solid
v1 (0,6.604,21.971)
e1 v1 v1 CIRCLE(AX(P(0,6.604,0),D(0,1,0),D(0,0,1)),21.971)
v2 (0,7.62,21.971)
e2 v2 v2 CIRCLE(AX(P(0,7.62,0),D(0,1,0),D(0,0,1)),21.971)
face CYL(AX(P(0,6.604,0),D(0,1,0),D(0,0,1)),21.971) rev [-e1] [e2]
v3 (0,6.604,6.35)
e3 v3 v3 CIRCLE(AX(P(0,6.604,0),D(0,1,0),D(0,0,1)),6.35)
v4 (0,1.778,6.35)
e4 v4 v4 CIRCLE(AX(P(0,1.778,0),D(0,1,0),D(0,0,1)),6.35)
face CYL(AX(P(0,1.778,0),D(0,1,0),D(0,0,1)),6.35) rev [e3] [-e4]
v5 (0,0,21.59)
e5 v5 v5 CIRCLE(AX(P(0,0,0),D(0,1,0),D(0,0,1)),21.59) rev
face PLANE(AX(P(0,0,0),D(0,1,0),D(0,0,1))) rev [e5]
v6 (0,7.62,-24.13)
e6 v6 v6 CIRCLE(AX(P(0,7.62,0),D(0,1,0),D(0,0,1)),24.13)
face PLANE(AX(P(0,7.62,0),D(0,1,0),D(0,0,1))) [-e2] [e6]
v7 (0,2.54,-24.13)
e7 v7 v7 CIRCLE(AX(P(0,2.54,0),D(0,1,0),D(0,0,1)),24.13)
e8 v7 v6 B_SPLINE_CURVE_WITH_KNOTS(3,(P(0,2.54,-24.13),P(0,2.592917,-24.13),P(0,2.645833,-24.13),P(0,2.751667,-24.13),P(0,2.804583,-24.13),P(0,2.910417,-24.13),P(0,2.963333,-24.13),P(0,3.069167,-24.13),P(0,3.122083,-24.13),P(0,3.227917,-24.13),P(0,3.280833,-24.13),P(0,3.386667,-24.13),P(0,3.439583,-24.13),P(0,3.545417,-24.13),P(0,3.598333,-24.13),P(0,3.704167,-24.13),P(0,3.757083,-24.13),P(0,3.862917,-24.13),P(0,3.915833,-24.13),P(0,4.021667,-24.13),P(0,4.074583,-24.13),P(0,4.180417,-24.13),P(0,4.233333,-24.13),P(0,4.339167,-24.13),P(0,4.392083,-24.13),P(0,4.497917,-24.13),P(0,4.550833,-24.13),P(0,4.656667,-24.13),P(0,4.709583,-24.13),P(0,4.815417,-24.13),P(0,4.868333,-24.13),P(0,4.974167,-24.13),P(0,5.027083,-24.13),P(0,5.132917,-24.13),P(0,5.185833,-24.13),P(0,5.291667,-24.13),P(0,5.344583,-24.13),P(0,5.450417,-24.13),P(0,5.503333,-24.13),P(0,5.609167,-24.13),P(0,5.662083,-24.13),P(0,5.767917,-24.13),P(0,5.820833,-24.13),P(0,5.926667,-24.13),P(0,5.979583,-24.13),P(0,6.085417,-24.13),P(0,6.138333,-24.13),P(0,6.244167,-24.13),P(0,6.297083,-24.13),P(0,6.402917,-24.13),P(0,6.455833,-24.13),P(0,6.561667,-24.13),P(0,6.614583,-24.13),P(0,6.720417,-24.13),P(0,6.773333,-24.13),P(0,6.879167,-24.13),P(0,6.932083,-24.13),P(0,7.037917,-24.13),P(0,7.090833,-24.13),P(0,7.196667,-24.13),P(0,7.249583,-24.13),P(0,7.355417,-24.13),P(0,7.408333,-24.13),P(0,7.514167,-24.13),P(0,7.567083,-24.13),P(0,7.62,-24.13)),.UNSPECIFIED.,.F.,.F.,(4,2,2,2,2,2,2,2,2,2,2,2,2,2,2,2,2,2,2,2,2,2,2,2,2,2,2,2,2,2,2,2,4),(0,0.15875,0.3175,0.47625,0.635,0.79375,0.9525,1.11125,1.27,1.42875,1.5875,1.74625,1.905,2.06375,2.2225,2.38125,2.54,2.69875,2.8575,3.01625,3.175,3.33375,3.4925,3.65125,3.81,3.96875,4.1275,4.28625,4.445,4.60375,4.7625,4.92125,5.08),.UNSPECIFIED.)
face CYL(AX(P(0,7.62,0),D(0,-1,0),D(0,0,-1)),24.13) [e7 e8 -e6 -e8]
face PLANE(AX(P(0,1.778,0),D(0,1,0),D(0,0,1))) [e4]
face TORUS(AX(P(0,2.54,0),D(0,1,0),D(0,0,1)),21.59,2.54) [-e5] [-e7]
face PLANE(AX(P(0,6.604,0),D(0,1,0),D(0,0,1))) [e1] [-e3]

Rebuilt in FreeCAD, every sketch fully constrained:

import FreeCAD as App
import Part
import Sketcher
Q = App.Units.Quantity


def edges_at(feature, points):
    """Names of the edges that pass closest to the given points."""
    edges = feature.Shape.Edges
    near = lambda p: min(range(len(edges)), key=lambda i: edges[i].distToShape(Part.Vertex(*p))[0])
    return sorted({f"Edge{near(p) + 1}" for p in points})

doc = App.newDocument("Part")
body = doc.addObject("PartDesign::Body", "Body")

sketch1 = body.newObject("Sketcher::SketchObject", "Sketch")
sketch1.AttachmentSupport = (doc.getObject("XZ_Plane"), [""])
sketch1.MapMode = "FlatFace"
sketch1.addGeometry(Part.Circle(App.Vector(0, 0, 0), App.Vector(0, 0, 1), 24), False)
sketch1.addConstraint([
    Sketcher.Constraint("Coincident", 0, 3, -1, 1),
    Sketcher.Constraint("Diameter", 0, Q("1.9 in")),
])
pad1 = body.newObject("PartDesign::Pad", "Pad")
pad1.Profile = sketch1
pad1.Length = Q("0.3 in")
pad1.Reversed = True

sketch2 = body.newObject("Sketcher::SketchObject", "Sketch001")
sketch2.AttachmentSupport = (doc.getObject("XZ_Plane"), [""])
sketch2.MapMode = "FlatFace"
sketch2.AttachmentOffset = App.Placement(App.Vector(0, 0, -0.3 * 25.4), App.Rotation())
sketch2.addGeometry(Part.Circle(App.Vector(0, 0, 0), App.Vector(0, 0, 1), 22), False)
sketch2.addConstraint([
    Sketcher.Constraint("Coincident", 0, 3, -1, 1),
    Sketcher.Constraint("Diameter", 0, Q("1.73 in")),
])
pocket1 = body.newObject("PartDesign::Pocket", "Pocket")
pocket1.Profile = sketch2
pocket1.Length = Q("0.04 in")
pocket1.Reversed = True

sketch3 = body.newObject("Sketcher::SketchObject", "Sketch002")
sketch3.AttachmentSupport = (doc.getObject("XZ_Plane"), [""])
sketch3.MapMode = "FlatFace"
sketch3.AttachmentOffset = App.Placement(App.Vector(0, 0, -0.26 * 25.4), App.Rotation())
sketch3.addGeometry(Part.Circle(App.Vector(0, 0, 0), App.Vector(0, 0, 1), 6), False)
sketch3.addConstraint([
    Sketcher.Constraint("Coincident", 0, 3, -1, 1),
    Sketcher.Constraint("Diameter", 0, Q("0.5 in")),
])
pocket2 = body.newObject("PartDesign::Pocket", "Pocket001")
pocket2.Profile = sketch3
pocket2.Length = Q("0.19 in")
pocket2.Reversed = True
doc.recompute()

fillet = body.newObject("PartDesign::Fillet", "Fillet")
fillet.Base = (pocket2, edges_at(pocket2, [(0, 0, 24.13)]))
fillet.Radius = Q("0.1 in")

doc.recompute()
